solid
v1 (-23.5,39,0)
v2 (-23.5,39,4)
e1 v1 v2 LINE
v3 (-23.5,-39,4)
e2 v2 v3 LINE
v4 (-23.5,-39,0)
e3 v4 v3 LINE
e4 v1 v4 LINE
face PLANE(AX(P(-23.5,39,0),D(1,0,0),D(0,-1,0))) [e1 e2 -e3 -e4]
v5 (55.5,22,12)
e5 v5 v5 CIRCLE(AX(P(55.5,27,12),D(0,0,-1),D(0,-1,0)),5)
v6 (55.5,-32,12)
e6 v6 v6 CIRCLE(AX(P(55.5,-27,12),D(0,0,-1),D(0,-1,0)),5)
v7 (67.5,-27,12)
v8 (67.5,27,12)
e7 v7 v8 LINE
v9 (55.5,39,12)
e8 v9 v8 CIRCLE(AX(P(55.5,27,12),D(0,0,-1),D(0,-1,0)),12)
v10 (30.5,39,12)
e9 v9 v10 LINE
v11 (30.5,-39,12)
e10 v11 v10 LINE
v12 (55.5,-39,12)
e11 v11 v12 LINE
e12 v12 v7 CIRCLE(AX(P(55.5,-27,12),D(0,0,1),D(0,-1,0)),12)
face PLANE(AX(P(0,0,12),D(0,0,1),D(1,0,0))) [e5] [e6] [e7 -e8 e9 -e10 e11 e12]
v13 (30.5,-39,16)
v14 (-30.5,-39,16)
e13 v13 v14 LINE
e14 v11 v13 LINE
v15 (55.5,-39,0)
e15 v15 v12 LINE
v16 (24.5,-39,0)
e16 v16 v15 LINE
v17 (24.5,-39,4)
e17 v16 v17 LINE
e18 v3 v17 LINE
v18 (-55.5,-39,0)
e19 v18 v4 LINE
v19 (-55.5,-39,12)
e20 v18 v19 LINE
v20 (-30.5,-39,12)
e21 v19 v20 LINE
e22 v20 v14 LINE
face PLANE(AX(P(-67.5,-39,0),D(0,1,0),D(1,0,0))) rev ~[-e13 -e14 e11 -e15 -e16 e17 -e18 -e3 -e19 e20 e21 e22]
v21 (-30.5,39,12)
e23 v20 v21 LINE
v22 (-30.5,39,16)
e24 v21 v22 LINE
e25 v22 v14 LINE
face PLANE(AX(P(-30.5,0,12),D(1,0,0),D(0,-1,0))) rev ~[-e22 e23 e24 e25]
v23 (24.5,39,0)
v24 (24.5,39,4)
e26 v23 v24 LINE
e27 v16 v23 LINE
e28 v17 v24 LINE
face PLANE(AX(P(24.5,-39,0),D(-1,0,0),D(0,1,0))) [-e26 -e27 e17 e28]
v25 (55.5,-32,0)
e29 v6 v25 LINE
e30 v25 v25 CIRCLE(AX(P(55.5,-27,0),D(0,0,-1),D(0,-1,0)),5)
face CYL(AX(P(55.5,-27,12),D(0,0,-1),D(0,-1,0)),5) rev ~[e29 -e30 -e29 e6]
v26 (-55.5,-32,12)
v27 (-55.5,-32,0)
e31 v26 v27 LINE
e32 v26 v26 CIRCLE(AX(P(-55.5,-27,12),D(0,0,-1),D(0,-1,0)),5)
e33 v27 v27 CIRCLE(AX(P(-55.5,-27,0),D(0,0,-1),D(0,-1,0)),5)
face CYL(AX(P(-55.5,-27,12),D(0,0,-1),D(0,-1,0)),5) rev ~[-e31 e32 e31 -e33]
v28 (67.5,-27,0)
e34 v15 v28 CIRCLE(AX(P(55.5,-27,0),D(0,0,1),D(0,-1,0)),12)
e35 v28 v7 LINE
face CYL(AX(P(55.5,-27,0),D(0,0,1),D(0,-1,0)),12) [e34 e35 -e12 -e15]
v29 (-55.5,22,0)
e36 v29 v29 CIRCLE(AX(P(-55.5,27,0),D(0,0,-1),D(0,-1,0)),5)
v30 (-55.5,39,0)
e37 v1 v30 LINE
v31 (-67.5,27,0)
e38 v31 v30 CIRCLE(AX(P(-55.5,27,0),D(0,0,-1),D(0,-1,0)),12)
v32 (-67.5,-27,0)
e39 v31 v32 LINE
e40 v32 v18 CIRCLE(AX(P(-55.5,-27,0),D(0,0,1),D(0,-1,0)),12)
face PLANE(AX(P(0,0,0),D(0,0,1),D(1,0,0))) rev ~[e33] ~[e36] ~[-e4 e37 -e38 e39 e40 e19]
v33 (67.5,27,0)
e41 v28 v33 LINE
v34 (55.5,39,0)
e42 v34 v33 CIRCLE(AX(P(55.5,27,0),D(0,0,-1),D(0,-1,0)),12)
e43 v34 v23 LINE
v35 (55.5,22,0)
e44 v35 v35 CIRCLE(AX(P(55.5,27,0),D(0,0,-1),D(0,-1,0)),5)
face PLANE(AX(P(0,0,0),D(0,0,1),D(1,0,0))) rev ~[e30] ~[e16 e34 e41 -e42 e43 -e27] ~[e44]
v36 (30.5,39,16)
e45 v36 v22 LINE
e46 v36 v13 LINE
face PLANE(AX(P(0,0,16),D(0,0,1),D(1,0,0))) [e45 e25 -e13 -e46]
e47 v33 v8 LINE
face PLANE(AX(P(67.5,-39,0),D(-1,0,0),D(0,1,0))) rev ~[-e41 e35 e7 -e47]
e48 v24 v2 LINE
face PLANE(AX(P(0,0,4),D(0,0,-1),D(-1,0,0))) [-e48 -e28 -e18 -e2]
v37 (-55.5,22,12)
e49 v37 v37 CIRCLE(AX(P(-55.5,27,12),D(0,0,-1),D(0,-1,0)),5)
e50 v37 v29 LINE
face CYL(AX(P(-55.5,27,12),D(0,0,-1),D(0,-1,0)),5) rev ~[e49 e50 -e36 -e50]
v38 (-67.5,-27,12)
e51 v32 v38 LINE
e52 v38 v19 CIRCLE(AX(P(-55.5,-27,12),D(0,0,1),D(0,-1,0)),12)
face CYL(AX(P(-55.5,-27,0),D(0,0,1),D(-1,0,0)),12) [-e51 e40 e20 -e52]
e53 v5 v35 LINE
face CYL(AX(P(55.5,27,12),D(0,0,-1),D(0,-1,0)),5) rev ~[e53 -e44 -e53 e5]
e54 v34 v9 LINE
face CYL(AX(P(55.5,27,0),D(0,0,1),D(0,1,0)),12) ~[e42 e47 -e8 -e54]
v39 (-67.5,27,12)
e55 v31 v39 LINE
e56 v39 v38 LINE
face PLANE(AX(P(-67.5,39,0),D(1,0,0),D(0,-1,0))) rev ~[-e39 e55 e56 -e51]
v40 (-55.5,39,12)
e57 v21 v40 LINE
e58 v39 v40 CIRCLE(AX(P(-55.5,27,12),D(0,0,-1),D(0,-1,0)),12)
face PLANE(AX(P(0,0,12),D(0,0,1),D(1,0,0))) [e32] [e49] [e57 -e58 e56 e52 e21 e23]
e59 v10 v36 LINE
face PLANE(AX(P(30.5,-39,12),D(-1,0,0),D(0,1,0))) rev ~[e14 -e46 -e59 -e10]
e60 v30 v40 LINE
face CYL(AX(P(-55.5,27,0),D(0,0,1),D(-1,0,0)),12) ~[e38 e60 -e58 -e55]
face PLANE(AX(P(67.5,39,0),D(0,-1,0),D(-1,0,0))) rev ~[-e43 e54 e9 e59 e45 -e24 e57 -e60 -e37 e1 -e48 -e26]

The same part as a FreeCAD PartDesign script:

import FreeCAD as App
import Part
import Sketcher


def edges_at(feature, points):
    """Names of the edges that pass closest to the given points."""
    edges = feature.Shape.Edges
    near = lambda p: min(range(len(edges)), key=lambda i: edges[i].distToShape(Part.Vertex(*p))[0])
    return sorted({f"Edge{near(p) + 1}" for p in points})

doc = App.newDocument("Part")
body = doc.addObject("PartDesign::Body", "Body")

sketch1 = doc.addObject("Sketcher::SketchObject", "Sketch")
body.addObject(sketch1)
sketch1.AttachmentSupport = (doc.XY_Plane, [""])
sketch1.MapMode = "FlatFace"
sketch1.addGeometry(Part.LineSegment(App.Vector(-68, 39, 0), App.Vector(-68, -39, 0)), False)
sketch1.addGeometry(Part.LineSegment(App.Vector(-68, -39, 0), App.Vector(68, -39, 0)), False)
sketch1.addGeometry(Part.LineSegment(App.Vector(68, -39, 0), App.Vector(68, 39, 0)), False)
sketch1.addGeometry(Part.LineSegment(App.Vector(68, 39, 0), App.Vector(-68, 39, 0)), False)
sketch1.addConstraint(Sketcher.Constraint("Coincident", 0, 2, 1, 1))
sketch1.addConstraint(Sketcher.Constraint("Coincident", 1, 2, 2, 1))
sketch1.addConstraint(Sketcher.Constraint("Coincident", 2, 2, 3, 1))
sketch1.addConstraint(Sketcher.Constraint("Coincident", 3, 2, 0, 1))
sketch1.addConstraint(Sketcher.Constraint("Vertical", 0))
sketch1.addConstraint(Sketcher.Constraint("Horizontal", 1))
sketch1.addConstraint(Sketcher.Constraint("Vertical", 2))
sketch1.addConstraint(Sketcher.Constraint("Horizontal", 3))
sketch1.addConstraint(Sketcher.Constraint("Symmetric", 0, 2, 2, 2, -1, 1))
sketch1.addConstraint(Sketcher.Constraint("DistanceX", 1, 1, 1, 2, 135.0))
sketch1.addConstraint(Sketcher.Constraint("DistanceY", 0, 2, 0, 1, 78.0))
pad1 = doc.addObject("PartDesign::Pad", "Pad")
body.addObject(pad1)
pad1.Profile = sketch1
pad1.Length = 12

sketch2 = doc.addObject("Sketcher::SketchObject", "Sketch001")
body.addObject(sketch2)
sketch2.AttachmentSupport = (doc.XY_Plane, [""])
sketch2.MapMode = "FlatFace"
sketch2.AttachmentOffset = App.Placement(App.Vector(0, 0, 12), App.Rotation())
sketch2.addGeometry(Part.LineSegment(App.Vector(30, -39, 0), App.Vector(30, 39, 0)), False)
sketch2.addGeometry(Part.LineSegment(App.Vector(30, 39, 0), App.Vector(-30, 39, 0)), False)
sketch2.addGeometry(Part.LineSegment(App.Vector(-30, 39, 0), App.Vector(-30, -39, 0)), False)
sketch2.addGeometry(Part.LineSegment(App.Vector(-30, -39, 0), App.Vector(30, -39, 0)), False)
sketch2.addConstraint(Sketcher.Constraint("Coincident", 0, 2, 1, 1))
sketch2.addConstraint(Sketcher.Constraint("Coincident", 1, 2, 2, 1))
sketch2.addConstraint(Sketcher.Constraint("Coincident", 2, 2, 3, 1))
sketch2.addConstraint(Sketcher.Constraint("Coincident", 3, 2, 0, 1))
sketch2.addConstraint(Sketcher.Constraint("Vertical", 0))
sketch2.addConstraint(Sketcher.Constraint("Horizontal", 1))
sketch2.addConstraint(Sketcher.Constraint("Vertical", 2))
sketch2.addConstraint(Sketcher.Constraint("Horizontal", 3))
sketch2.addConstraint(Sketcher.Constraint("Symmetric", 0, 2, 2, 2, -1, 1))
sketch2.addConstraint(Sketcher.Constraint("DistanceX", 1, 2, 1, 1, 61.0))
sketch2.addConstraint(Sketcher.Constraint("DistanceY", 0, 1, 0, 2, 78.0))
pad2 = doc.addObject("PartDesign::Pad", "Pad001")
body.addObject(pad2)
pad2.Profile = sketch2
pad2.Length = 4

sketch3 = doc.addObject("Sketcher::SketchObject", "Sketch002")
body.addObject(sketch3)
sketch3.AttachmentSupport = (doc.XY_Plane, [""])
sketch3.MapMode = "FlatFace"
sketch3.addGeometry(Part.LineSegment(App.Vector(24, -39, 0), App.Vector(-24, -39, 0)), False)
sketch3.addGeometry(Part.LineSegment(App.Vector(-24, -39, 0), App.Vector(-24, 39, 0)), False)
sketch3.addGeometry(Part.LineSegment(App.Vector(-24, 39, 0), App.Vector(24, 39, 0)), False)
sketch3.addGeometry(Part.LineSegment(App.Vector(24, 39, 0), App.Vector(24, -39, 0)), False)
sketch3.addConstraint(Sketcher.Constraint("Coincident", 0, 2, 1, 1))
sketch3.addConstraint(Sketcher.Constraint("Coincident", 1, 2, 2, 1))
sketch3.addConstraint(Sketcher.Constraint("Coincident", 2, 2, 3, 1))
sketch3.addConstraint(Sketcher.Constraint("Coincident", 3, 2, 0, 1))
sketch3.addConstraint(Sketcher.Constraint("Horizontal", 0))
sketch3.addConstraint(Sketcher.Constraint("Vertical", 1))
sketch3.addConstraint(Sketcher.Constraint("Horizontal", 2))
sketch3.addConstraint(Sketcher.Constraint("Vertical", 3))
sketch3.addConstraint(Sketcher.Constraint("DistanceX", 0, 2, 0, 1, 48.0))
sketch3.addConstraint(Sketcher.Constraint("DistanceY", 1, 1, 1, 2, 78.0))
sketch3.addConstraint(Sketcher.Constraint("DistanceY", 0, 2, -1, 1, 39.0))
sketch3.addConstraint(Sketcher.Constraint("DistanceX", 0, 2, -1, 1, 23.5))
pocket1 = doc.addObject("PartDesign::Pocket", "Pocket")
body.addObject(pocket1)
pocket1.Profile = sketch3
pocket1.Length = 4
pocket1.Reversed = True

sketch4 = doc.addObject("Sketcher::SketchObject", "Sketch003")
body.addObject(sketch4)
sketch4.AttachmentSupport = (doc.XY_Plane, [""])
sketch4.MapMode = "FlatFace"
sketch4.AttachmentOffset = App.Placement(App.Vector(0, 0, 12), App.Rotation())
sketch4.addGeometry(Part.Circle(App.Vector(56, 27, 0), App.Vector(0, 0, 1), 5), False)
sketch4.addGeometry(Part.Circle(App.Vector(-56, 27, 0), App.Vector(0, 0, 1), 5), False)
sketch4.addGeometry(Part.Circle(App.Vector(-56, -27, 0), App.Vector(0, 0, 1), 5), False)
sketch4.addGeometry(Part.Circle(App.Vector(56, -27, 0), App.Vector(0, 0, 1), 5), False)
sketch4.addConstraint(Sketcher.Constraint("Equal", 0, 1))
sketch4.addConstraint(Sketcher.Constraint("Equal", 1, 2))
sketch4.addConstraint(Sketcher.Constraint("Equal", 2, 3))
sketch4.addConstraint(Sketcher.Constraint("Symmetric", 0, 3, 2, 3, -1, 1))
sketch4.addConstraint(Sketcher.Constraint("Symmetric", 1, 3, 3, 3, -1, 1))
sketch4.addConstraint(Sketcher.Constraint("Symmetric", 0, 3, 1, 3, -2))
sketch4.addConstraint(Sketcher.Constraint("Diameter", 0, 10.0))
sketch4.addConstraint(Sketcher.Constraint("DistanceY", -1, 1, 0, 3, 27.0))
sketch4.addConstraint(Sketcher.Constraint("DistanceX", 1, 3, 0, 3, 111.0))
doc.recompute()
hole = doc.addObject("PartDesign::Hole", "Hole")
body.addObject(hole)
hole.Profile = sketch4
hole.ThreadType = "None"
hole.Diameter = 10
hole.DepthType = "Dimension"
hole.Depth = 12
hole.DrillPoint = "Flat"
doc.recompute()

fillet = doc.addObject("PartDesign::Fillet", "Fillet")
body.addObject(fillet)
fillet.Base = (hole, edges_at(hole, [
    (67.5, 39, 6),
    (67.5, -39, 6),
    (-67.5, 39, 6),
    (-67.5, -39, 6),
]))
fillet.Radius = 12

doc.recompute()
